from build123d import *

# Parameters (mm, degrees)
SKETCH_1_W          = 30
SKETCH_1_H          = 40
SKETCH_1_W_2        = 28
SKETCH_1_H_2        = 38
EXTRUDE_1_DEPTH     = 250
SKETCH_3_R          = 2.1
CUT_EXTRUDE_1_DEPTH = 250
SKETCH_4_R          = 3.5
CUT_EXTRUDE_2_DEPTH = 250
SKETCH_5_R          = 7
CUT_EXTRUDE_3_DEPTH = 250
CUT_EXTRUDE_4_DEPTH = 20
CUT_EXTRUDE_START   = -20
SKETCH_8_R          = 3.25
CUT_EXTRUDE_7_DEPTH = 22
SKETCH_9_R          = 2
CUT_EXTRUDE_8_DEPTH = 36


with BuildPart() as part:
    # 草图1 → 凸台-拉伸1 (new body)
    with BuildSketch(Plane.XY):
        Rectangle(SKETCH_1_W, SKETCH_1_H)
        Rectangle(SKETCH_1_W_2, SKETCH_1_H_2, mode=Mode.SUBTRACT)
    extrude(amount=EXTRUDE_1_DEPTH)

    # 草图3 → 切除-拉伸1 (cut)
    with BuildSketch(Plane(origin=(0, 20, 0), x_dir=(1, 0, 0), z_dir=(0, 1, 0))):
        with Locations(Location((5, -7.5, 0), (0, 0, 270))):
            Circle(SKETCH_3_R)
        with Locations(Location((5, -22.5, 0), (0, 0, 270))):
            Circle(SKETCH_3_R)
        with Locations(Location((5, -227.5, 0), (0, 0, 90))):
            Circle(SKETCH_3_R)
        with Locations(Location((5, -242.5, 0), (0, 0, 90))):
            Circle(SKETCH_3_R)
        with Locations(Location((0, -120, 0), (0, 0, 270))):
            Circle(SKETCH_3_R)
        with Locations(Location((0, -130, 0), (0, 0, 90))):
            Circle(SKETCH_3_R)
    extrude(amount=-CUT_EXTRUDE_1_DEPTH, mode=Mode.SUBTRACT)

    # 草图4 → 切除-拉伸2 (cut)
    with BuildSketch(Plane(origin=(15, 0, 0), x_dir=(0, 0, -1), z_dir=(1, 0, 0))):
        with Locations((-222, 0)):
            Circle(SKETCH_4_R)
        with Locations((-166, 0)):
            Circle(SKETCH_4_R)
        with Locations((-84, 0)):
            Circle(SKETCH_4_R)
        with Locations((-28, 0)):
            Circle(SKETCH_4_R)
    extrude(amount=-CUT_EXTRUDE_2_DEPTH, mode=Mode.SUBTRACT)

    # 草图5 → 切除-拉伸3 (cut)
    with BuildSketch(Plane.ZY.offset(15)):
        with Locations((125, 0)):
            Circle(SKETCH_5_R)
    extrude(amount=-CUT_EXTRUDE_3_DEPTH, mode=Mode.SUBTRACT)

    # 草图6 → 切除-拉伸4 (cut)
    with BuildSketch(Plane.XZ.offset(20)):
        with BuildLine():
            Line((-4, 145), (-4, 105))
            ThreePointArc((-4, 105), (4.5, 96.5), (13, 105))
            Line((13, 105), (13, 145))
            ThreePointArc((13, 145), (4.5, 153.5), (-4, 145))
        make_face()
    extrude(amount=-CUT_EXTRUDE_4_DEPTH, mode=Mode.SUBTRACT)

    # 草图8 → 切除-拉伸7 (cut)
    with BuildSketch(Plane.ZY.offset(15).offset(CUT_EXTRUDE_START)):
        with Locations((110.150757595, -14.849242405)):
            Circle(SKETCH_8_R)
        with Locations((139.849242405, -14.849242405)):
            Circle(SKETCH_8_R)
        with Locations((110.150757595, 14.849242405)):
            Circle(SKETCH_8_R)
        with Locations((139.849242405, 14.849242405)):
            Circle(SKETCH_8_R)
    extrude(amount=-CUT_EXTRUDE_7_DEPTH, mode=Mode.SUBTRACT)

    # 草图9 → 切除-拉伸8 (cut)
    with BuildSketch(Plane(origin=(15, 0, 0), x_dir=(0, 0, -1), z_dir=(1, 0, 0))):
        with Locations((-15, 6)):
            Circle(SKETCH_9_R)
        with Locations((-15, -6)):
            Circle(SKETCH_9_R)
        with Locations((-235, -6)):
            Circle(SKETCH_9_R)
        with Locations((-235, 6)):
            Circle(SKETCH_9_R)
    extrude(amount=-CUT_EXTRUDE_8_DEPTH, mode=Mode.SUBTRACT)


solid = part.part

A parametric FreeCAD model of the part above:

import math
import FreeCAD as App
import Part
import Sketcher
Q = App.Units.Quantity

doc = App.newDocument("Part")
params = doc.addObject("Spreadsheet::Sheet", "Params")
for row, (alias, value) in enumerate([
    ("sketch1_width", "30 mm"),
    ("sketch1_width2", "28 mm"),
    ("sketch1_height", "40 mm"),
    ("sketch1_height2", "38 mm"),
    ("pad1_length", "250 mm"),
    ("sketch2_diameter", "4.2 mm"),
    ("pocket1_length", "250 mm"),
    ("sketch3_diameter", "7 mm"),
    ("pocket2_length", "250 mm"),
    ("sketch4_diameter", "14 mm"),
    ("pocket3_length", "250 mm"),
    ("sketch5_radius", "8.5 mm"),
    ("sketch5_height", "40 mm"),
    ("pocket4_length", "20 mm"),
    ("sketch6_diameter", "6.5 mm"),
    ("pocket5_length", "22 mm"),
    ("sketch7_diameter", "4 mm"),
    ("pocket6_length", "36 mm"),
], start=1):
    params.set(f"A{row}", alias)
    params.set(f"B{row}", "=" + value)
    params.setAlias(f"B{row}", alias)

body = doc.addObject("PartDesign::Body", "Body")

# Sketch on XY plane
sketch1 = doc.addObject("Sketcher::SketchObject", "Sketch")
body.addObject(sketch1)
sketch1.AttachmentSupport = (doc.XY_Plane, [""])
sketch1.MapMode = "FlatFace"
sketch1.addGeometry([
    Part.LineSegment(App.Vector(-15, 20, 0), App.Vector(-15, -20, 0)),  # 0
    Part.LineSegment(App.Vector(-15, -20, 0), App.Vector(15, -20, 0)),  # 1
    Part.LineSegment(App.Vector(15, -20, 0), App.Vector(15, 20, 0)),  # 2
    Part.LineSegment(App.Vector(15, 20, 0), App.Vector(-15, 20, 0)),  # 3
    Part.LineSegment(App.Vector(14, -19, 0), App.Vector(-14, -19, 0)),  # 4
    Part.LineSegment(App.Vector(-14, -19, 0), App.Vector(-14, 19, 0)),  # 5
    Part.LineSegment(App.Vector(-14, 19, 0), App.Vector(14, 19, 0)),  # 6
    Part.LineSegment(App.Vector(14, 19, 0), App.Vector(14, -19, 0)),  # 7
], False)
sketch1.addConstraint([
    Sketcher.Constraint("Coincident", 0, 2, 1, 1),
    Sketcher.Constraint("Coincident", 1, 2, 2, 1),
    Sketcher.Constraint("Coincident", 2, 2, 3, 1),
    Sketcher.Constraint("Coincident", 3, 2, 0, 1),
    Sketcher.Constraint("Coincident", 4, 2, 5, 1),
    Sketcher.Constraint("Coincident", 5, 2, 6, 1),
    Sketcher.Constraint("Coincident", 6, 2, 7, 1),
    Sketcher.Constraint("Coincident", 7, 2, 4, 1),
    Sketcher.Constraint("Vertical", 0),
    Sketcher.Constraint("Horizontal", 1),
    Sketcher.Constraint("Vertical", 2),
    Sketcher.Constraint("Horizontal", 3),
    Sketcher.Constraint("Horizontal", 4),
    Sketcher.Constraint("Vertical", 5),
    Sketcher.Constraint("Horizontal", 6),
    Sketcher.Constraint("Vertical", 7),
    Sketcher.Constraint("Symmetric", 0, 2, 2, 2, -1, 1),
    Sketcher.Constraint("Symmetric", 4, 2, 6, 2, -1, 1),
    Sketcher.Constraint("DistanceX", 1, 1, 1, 2, Q("30 mm")),
    Sketcher.Constraint("DistanceX", 4, 2, 4, 1, Q("28 mm")),
    Sketcher.Constraint("DistanceY", 0, 2, 0, 1, Q("40 mm")),
    Sketcher.Constraint("DistanceY", 5, 1, 5, 2, Q("38 mm")),
])
sketch1.setExpression("Constraints[18]", "Params.sketch1_width")
sketch1.setExpression("Constraints[19]", "Params.sketch1_width2")
sketch1.setExpression("Constraints[20]", "Params.sketch1_height")
sketch1.setExpression("Constraints[21]", "Params.sketch1_height2")
pad1 = doc.addObject("PartDesign::Pad", "Pad")
body.addObject(pad1)
pad1.Profile = sketch1
pad1.setExpression("Length", "Params.pad1_length")

# Sketch on XZ plane
sketch2 = doc.addObject("Sketcher::SketchObject", "Sketch001")
body.addObject(sketch2)
sketch2.AttachmentSupport = (doc.XZ_Plane, [""])
sketch2.MapMode = "FlatFace"
sketch2.AttachmentOffset = App.Placement(App.Vector(0, 0, -20), App.Rotation())
sketch2.addGeometry([
    Part.Circle(App.Vector(5, 7.5, 0), App.Vector(0, 0, 1), 2.1),  # 0
    Part.Circle(App.Vector(5, 22.5, 0), App.Vector(0, 0, 1), 2.1),  # 1
    Part.Circle(App.Vector(5, 227.5, 0), App.Vector(0, 0, 1), 2.1),  # 2
    Part.Circle(App.Vector(5, 242.5, 0), App.Vector(0, 0, 1), 2.1),  # 3
    Part.Circle(App.Vector(0, 120, 0), App.Vector(0, 0, 1), 2.1),  # 4
    Part.Circle(App.Vector(0, 130, 0), App.Vector(0, 0, 1), 2.1),  # 5
], False)
sketch2.addConstraint([
    Sketcher.Constraint("Equal", 0, 1),
    Sketcher.Constraint("Equal", 1, 2),
    Sketcher.Constraint("Equal", 2, 3),
    Sketcher.Constraint("Equal", 3, 4),
    Sketcher.Constraint("Equal", 4, 5),
    Sketcher.Constraint("PointOnObject", 4, 3, -2),
    Sketcher.Constraint("PointOnObject", 5, 3, -2),
    Sketcher.Constraint("Vertical", 0, 3, 1, 3),
    Sketcher.Constraint("Vertical", 1, 3, 2, 3),
    Sketcher.Constraint("Vertical", 2, 3, 3, 3),
    Sketcher.Constraint("Diameter", 0, Q("4.2 mm")),
    Sketcher.Constraint("DistanceX", -1, 1, 0, 3, Q("5 mm")),
    Sketcher.Constraint("DistanceY", -1, 1, 4, 3, Q("120 mm")),
    Sketcher.Constraint("DistanceY", -1, 1, 5, 3, Q("130 mm")),
    Sketcher.Constraint("DistanceY", 0, 3, 1, 3, Q("15 mm")),
    Sketcher.Constraint("DistanceY", 1, 3, 2, 3, Q("205 mm")),
    Sketcher.Constraint("DistanceY", 2, 3, 3, 3, Q("15 mm")),
    Sketcher.Constraint("DistanceY", -1, 1, 0, 3, Q("7.5 mm")),
])
sketch2.setExpression("Constraints[10]", "Params.sketch2_diameter")
pocket1 = doc.addObject("PartDesign::Pocket", "Pocket")
body.addObject(pocket1)
pocket1.Profile = sketch2
pocket1.setExpression("Length", "Params.pocket1_length")
pocket1.Reversed = True

# Sketch on YZ plane
sketch3 = doc.addObject("Sketcher::SketchObject", "Sketch002")
body.addObject(sketch3)
sketch3.AttachmentSupport = (doc.YZ_Plane, [""])
sketch3.MapMode = "FlatFace"
sketch3.AttachmentOffset = App.Placement(App.Vector(0, 0, 15), App.Rotation())
sketch3.addGeometry([
    Part.Circle(App.Vector(0, 222, 0), App.Vector(0, 0, 1), 3.5),
    Part.Circle(App.Vector(0, 166, 0), App.Vector(0, 0, 1), 3.5),
    Part.Circle(App.Vector(0, 84, 0), App.Vector(0, 0, 1), 3.5),
    Part.Circle(App.Vector(0, 28, 0), App.Vector(0, 0, 1), 3.5),
], False)
sketch3.addConstraint([
    Sketcher.Constraint("Equal", 0, 1),
    Sketcher.Constraint("Equal", 1, 2),
    Sketcher.Constraint("Equal", 2, 3),
    Sketcher.Constraint("PointOnObject", 0, 3, -2),
    Sketcher.Constraint("PointOnObject", 1, 3, -2),
    Sketcher.Constraint("PointOnObject", 2, 3, -2),
    Sketcher.Constraint("PointOnObject", 3, 3, -2),
    Sketcher.Constraint("Diameter", 0, Q("7 mm")),
    Sketcher.Constraint("DistanceY", -1, 1, 0, 3, Q("222 mm")),
    Sketcher.Constraint("DistanceY", -1, 1, 1, 3, Q("166 mm")),
    Sketcher.Constraint("DistanceY", -1, 1, 2, 3, Q("84 mm")),
    Sketcher.Constraint("DistanceY", -1, 1, 3, 3, Q("28 mm")),
])
sketch3.setExpression("Constraints[7]", "Params.sketch3_diameter")
pocket2 = doc.addObject("PartDesign::Pocket", "Pocket001")
body.addObject(pocket2)
pocket2.Profile = sketch3
pocket2.setExpression("Length", "Params.pocket2_length")

# Sketch on YZ plane
sketch4 = doc.addObject("Sketcher::SketchObject", "Sketch003")
body.addObject(sketch4)
sketch4.AttachmentSupport = (doc.YZ_Plane, [""])
sketch4.MapMode = "FlatFace"
sketch4.AttachmentOffset = App.Placement(App.Vector(0, 0, -15), App.Rotation())
sketch4.addGeometry(Part.Circle(App.Vector(0, 125, 0), App.Vector(0, 0, 1), 7), False)
sketch4.addConstraint([
    Sketcher.Constraint("PointOnObject", 0, 3, -2),
    Sketcher.Constraint("Diameter", 0, Q("14 mm")),
    Sketcher.Constraint("DistanceY", -1, 1, 0, 3, Q("125 mm")),
])
sketch4.setExpression("Constraints[1]", "Params.sketch4_diameter")
pocket3 = doc.addObject("PartDesign::Pocket", "Pocket002")
body.addObject(pocket3)
pocket3.Profile = sketch4
pocket3.setExpression("Length", "Params.pocket3_length")
pocket3.Reversed = True

# Sketch on XZ plane
sketch5 = doc.addObject("Sketcher::SketchObject", "Sketch004")
body.addObject(sketch5)
sketch5.AttachmentSupport = (doc.XZ_Plane, [""])
sketch5.MapMode = "FlatFace"
sketch5.AttachmentOffset = App.Placement(App.Vector(0, 0, 20), App.Rotation())
sketch5.addGeometry([
    Part.LineSegment(App.Vector(-4, 145, 0), App.Vector(-4, 105, 0)),
    Part.ArcOfCircle(Part.Circle(App.Vector(4, 105, 0), App.Vector(0, 0, 1), 8), math.radians(180), math.radians(360)),
    Part.LineSegment(App.Vector(13, 105, 0), App.Vector(13, 145, 0)),
    Part.ArcOfCircle(Part.Circle(App.Vector(4, 145, 0), App.Vector(0, 0, 1), 8), math.radians(0), math.radians(180)),
], False)
sketch5.addConstraint([
    Sketcher.Constraint("Tangent", 0, 2, 1, 1),
    Sketcher.Constraint("Tangent", 1, 2, 2, 1),
    Sketcher.Constraint("Tangent", 2, 2, 3, 1),
    Sketcher.Constraint("Tangent", 3, 2, 0, 1),
    Sketcher.Constraint("Vertical", 0),
    Sketcher.Constraint("Vertical", 2),
    Sketcher.Constraint("Radius", 1, Q("8.5 mm")),
    Sketcher.Constraint("DistanceY", 0, 2, 0, 1, Q("40 mm")),
    Sketcher.Constraint("DistanceY", -1, 1, 1, 3, Q("105 mm")),
    Sketcher.Constraint("DistanceX", 0, 2, -1, 1, Q("4 mm")),
])
sketch5.setExpression("Constraints[6]", "Params.sketch5_radius")
sketch5.setExpression("Constraints[7]", "Params.sketch5_height")
pocket4 = doc.addObject("PartDesign::Pocket", "Pocket003")
body.addObject(pocket4)
pocket4.Profile = sketch5
pocket4.setExpression("Length", "Params.pocket4_length")

# Sketch on YZ plane
sketch6 = doc.addObject("Sketcher::SketchObject", "Sketch005")
body.addObject(sketch6)
sketch6.AttachmentSupport = (doc.YZ_Plane, [""])
sketch6.MapMode = "FlatFace"
sketch6.AttachmentOffset = App.Placement(App.Vector(0, 0, 5), App.Rotation())
sketch6.addGeometry([
    Part.Circle(App.Vector(-14.8, 110.2, 0), App.Vector(0, 0, 1), 3.2),
    Part.Circle(App.Vector(-14.8, 139.8, 0), App.Vector(0, 0, 1), 3.2),
    Part.Circle(App.Vector(14.8, 110.2, 0), App.Vector(0, 0, 1), 3.2),
    Part.Circle(App.Vector(14.8, 139.8, 0), App.Vector(0, 0, 1), 3.2),
], False)
sketch6.addConstraint([
    Sketcher.Constraint("Equal", 0, 1),
    Sketcher.Constraint("Equal", 1, 2),
    Sketcher.Constraint("Equal", 2, 3),
    Sketcher.Constraint("Symmetric", 0, 3, 2, 3, -2),
    Sketcher.Constraint("Symmetric", 1, 3, 3, 3, -2),
    Sketcher.Constraint("Vertical", 0, 3, 1, 3),
    Sketcher.Constraint("Diameter", 0, Q("6.5 mm")),
    Sketcher.Constraint("DistanceX", 0, 3, -1, 1, Q("14.849242 mm")),
    Sketcher.Constraint("DistanceY", -1, 1, 0, 3, Q("110.150758 mm")),
    Sketcher.Constraint("DistanceY", -1, 1, 1, 3, Q("139.849242 mm")),
])
sketch6.setExpression("Constraints[6]", "Params.sketch6_diameter")
pocket5 = doc.addObject("PartDesign::Pocket", "Pocket004")
body.addObject(pocket5)
pocket5.Profile = sketch6
pocket5.setExpression("Length", "Params.pocket5_length")
pocket5.Reversed = True

# Sketch on YZ plane
sketch7 = doc.addObject("Sketcher::SketchObject", "Sketch006")
body.addObject(sketch7)
sketch7.AttachmentSupport = (doc.YZ_Plane, [""])
sketch7.MapMode = "FlatFace"
sketch7.AttachmentOffset = App.Placement(App.Vector(0, 0, 15), App.Rotation())
sketch7.addGeometry([
    Part.Circle(App.Vector(6, 15, 0), App.Vector(0, 0, 1), 2),
    Part.Circle(App.Vector(-6, 15, 0), App.Vector(0, 0, 1), 2),
    Part.Circle(App.Vector(-6, 235, 0), App.Vector(0, 0, 1), 2),
    Part.Circle(App.Vector(6, 235, 0), App.Vector(0, 0, 1), 2),
], False)
sketch7.addConstraint([
    Sketcher.Constraint("Equal", 0, 1),
    Sketcher.Constraint("Equal", 1, 2),
    Sketcher.Constraint("Equal", 2, 3),
    Sketcher.Constraint("Symmetric", 0, 3, 1, 3, -2),
    Sketcher.Constraint("Symmetric", 2, 3, 3, 3, -2),
    Sketcher.Constraint("Vertical", 1, 3, 2, 3),
    Sketcher.Constraint("Diameter", 0, Q("4 mm")),
    Sketcher.Constraint("DistanceX", -1, 1, 0, 3, Q("6 mm")),
    Sketcher.Constraint("DistanceY", -1, 1, 0, 3, Q("15 mm")),
    Sketcher.Constraint("DistanceY", -1, 1, 2, 3, Q("235 mm")),
])
sketch7.setExpression("Constraints[6]", "Params.sketch7_diameter")
pocket6 = doc.addObject("PartDesign::Pocket", "Pocket005")
body.addObject(pocket6)
pocket6.Profile = sketch7
pocket6.setExpression("Length", "Params.pocket6_length")

doc.recompute()
